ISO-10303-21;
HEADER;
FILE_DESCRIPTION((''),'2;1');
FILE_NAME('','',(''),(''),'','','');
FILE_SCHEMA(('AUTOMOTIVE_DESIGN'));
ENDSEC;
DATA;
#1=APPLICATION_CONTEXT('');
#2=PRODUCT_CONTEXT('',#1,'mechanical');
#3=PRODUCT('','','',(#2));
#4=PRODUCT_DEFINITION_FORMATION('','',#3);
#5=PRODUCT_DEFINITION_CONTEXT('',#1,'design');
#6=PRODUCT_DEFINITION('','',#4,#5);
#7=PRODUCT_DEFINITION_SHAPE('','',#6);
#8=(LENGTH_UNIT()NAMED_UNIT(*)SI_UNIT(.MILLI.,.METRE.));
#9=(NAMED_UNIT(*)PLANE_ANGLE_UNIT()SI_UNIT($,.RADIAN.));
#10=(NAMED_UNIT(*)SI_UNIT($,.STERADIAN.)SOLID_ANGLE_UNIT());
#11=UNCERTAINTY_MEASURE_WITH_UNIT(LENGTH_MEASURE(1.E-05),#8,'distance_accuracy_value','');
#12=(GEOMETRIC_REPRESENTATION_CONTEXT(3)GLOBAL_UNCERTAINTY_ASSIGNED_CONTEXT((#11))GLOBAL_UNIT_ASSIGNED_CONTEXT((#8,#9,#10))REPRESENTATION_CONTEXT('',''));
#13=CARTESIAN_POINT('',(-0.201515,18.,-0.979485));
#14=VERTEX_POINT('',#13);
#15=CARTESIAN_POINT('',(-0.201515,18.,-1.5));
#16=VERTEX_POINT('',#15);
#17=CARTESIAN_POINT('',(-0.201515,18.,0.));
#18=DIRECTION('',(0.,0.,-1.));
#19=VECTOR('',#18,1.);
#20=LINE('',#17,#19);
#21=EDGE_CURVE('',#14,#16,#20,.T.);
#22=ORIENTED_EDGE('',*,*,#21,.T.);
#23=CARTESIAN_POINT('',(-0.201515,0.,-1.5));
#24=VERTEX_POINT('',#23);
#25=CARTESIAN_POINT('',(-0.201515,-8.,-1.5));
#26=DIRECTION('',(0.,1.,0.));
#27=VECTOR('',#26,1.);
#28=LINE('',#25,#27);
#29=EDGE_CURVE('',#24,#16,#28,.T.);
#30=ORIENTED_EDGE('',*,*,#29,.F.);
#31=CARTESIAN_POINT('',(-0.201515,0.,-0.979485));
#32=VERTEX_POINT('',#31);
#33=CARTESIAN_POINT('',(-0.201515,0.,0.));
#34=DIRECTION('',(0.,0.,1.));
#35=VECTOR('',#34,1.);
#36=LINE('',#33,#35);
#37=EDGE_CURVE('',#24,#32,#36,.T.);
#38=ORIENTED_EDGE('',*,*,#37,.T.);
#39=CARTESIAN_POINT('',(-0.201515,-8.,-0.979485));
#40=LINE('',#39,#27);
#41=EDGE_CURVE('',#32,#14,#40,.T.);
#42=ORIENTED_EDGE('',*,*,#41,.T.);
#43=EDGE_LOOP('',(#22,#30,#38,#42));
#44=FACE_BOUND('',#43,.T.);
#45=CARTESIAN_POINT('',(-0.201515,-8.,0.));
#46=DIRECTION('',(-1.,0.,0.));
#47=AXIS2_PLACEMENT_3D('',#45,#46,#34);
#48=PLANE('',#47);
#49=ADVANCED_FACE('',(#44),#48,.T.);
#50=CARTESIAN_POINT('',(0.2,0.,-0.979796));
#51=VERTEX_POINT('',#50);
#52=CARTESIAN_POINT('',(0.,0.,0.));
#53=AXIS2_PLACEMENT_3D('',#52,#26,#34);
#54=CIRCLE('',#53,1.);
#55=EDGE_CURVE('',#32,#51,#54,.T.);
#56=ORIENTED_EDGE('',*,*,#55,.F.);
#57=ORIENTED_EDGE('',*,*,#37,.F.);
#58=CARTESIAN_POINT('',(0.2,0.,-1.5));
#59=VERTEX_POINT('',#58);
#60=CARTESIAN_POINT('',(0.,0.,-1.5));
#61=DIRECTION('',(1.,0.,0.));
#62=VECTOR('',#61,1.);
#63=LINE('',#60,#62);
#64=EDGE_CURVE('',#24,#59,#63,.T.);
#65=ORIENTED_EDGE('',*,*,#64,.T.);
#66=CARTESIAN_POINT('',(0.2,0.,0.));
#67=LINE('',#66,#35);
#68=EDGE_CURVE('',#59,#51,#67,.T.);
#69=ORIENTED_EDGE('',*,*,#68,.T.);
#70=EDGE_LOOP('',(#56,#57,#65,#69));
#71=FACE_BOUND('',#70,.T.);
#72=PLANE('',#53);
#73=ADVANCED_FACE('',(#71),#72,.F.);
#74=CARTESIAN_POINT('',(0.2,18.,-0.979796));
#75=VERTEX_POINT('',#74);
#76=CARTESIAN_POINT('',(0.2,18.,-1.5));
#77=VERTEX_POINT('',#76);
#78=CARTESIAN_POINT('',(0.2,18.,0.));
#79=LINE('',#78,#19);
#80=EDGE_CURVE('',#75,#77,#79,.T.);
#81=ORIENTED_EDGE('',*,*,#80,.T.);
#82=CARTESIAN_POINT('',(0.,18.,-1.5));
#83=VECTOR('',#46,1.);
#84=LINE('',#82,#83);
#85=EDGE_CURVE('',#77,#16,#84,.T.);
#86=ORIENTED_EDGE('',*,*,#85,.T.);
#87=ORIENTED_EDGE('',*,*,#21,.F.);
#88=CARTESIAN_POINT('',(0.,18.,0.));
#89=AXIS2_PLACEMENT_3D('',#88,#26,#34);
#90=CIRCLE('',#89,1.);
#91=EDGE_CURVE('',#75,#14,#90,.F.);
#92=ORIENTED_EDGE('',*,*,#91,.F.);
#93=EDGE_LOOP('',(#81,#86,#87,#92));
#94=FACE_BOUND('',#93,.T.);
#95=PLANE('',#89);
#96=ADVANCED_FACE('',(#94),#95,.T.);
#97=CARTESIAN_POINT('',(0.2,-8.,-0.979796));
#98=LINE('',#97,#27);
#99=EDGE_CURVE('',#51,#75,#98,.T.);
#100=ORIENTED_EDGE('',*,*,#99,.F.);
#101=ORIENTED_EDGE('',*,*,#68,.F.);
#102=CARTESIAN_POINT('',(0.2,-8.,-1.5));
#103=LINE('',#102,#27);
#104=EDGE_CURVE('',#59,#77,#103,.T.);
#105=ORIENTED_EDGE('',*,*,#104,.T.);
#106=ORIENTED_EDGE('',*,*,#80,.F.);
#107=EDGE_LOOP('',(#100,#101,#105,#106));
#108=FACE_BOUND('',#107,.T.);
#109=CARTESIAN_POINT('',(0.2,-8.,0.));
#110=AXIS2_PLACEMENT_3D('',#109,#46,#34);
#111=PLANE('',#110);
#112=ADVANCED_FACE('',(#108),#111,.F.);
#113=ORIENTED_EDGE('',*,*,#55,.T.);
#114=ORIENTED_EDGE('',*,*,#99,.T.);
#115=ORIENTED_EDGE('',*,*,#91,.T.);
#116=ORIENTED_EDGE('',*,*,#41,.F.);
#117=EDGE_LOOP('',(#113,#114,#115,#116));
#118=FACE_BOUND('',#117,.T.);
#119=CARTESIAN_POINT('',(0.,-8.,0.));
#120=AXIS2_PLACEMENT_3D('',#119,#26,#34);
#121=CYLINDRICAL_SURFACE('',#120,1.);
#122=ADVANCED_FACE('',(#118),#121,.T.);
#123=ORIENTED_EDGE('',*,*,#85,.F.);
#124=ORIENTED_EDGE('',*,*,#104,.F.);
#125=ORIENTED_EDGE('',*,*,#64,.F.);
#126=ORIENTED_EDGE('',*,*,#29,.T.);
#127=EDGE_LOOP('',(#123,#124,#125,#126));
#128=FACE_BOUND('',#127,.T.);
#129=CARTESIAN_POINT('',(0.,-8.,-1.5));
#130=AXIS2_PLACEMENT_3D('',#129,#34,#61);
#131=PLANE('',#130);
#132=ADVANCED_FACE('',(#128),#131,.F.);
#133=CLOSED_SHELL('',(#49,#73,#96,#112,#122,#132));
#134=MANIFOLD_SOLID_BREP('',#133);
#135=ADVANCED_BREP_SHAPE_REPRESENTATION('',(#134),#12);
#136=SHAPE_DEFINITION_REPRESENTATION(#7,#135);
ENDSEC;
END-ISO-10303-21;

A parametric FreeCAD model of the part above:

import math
import FreeCAD as App
import Part
import Sketcher

V = App.Vector

doc = App.newDocument("Part")
params = doc.addObject("Spreadsheet::Sheet", "Params")
for row, (alias, value) in enumerate([
    ("sketch1_radius", "2 mm"),
    ("sketch1_width", "1 mm"),
    ("pad1_length", "45 mm"),
    ("sketch2_radius", "1 mm"),
    ("pocket1_length", "53 mm"),
    ("pocket2_length", "27 mm"),
], start=1):
    params.set(f"A{row}", alias)
    params.set(f"B{row}", "=" + value)
    params.setAlias(f"B{row}", alias)

body = doc.addObject("PartDesign::Body", "Body")

sketch1 = body.newObject("Sketcher::SketchObject", "Sketch")
sketch1.AttachmentSupport = (doc.getObject("XZ_Plane"), [""])
sketch1.MapMode = "FlatFace"
sketch1.addGeometry(Part.LineSegment(V(0.5, -1.9, 0), V(0.5, -2.8, 0)), False)
sketch1.addGeometry(Part.LineSegment(V(0.5, -2.8, 0), V(-0.5, -2.8, 0)), False)
sketch1.addGeometry(Part.LineSegment(V(-0.5, -2.8, 0), V(-0.5, -1.9, 0)), False)
sketch1.addGeometry(Part.ArcOfCircle(Part.Circle(V(0, 0, 0), V(0, 0, 1), 2), math.radians(-76), math.radians(256)), False)
sketch1.addConstraint(Sketcher.Constraint("Coincident", 0, 2, 1, 1))
sketch1.addConstraint(Sketcher.Constraint("Coincident", 1, 2, 2, 1))
sketch1.addConstraint(Sketcher.Constraint("Coincident", 2, 2, 3, 2))
sketch1.addConstraint(Sketcher.Constraint("Coincident", 3, 1, 0, 1))
sketch1.addConstraint(Sketcher.Constraint("Vertical", 0))
sketch1.addConstraint(Sketcher.Constraint("Horizontal", 1))
sketch1.addConstraint(Sketcher.Constraint("Vertical", 2))
sketch1.addConstraint(Sketcher.Constraint("Coincident", 3, 3, -1, 1))
sketch1.addConstraint(Sketcher.Constraint("Horizontal", 2, 2, 3, 1))
sketch1.addConstraint(Sketcher.Constraint("Radius", 3, 2.0))
sketch1.addConstraint(Sketcher.Constraint("DistanceX", 1, 2, 1, 1, 1.0))
sketch1.addConstraint(Sketcher.Constraint("DistanceY", 0, 2, -1, 1, 2.8))
sketch1.setExpression("Constraints[9]", "Params.sketch1_radius")
sketch1.setExpression("Constraints[10]", "Params.sketch1_width")
pad1 = body.newObject("PartDesign::Pad", "Pad")
pad1.Profile = sketch1
pad1.setExpression("Length", "Params.pad1_length")
pad1.Reversed = True

sketch2 = body.newObject("Sketcher::SketchObject", "Sketch001")
sketch2.AttachmentSupport = (doc.getObject("XZ_Plane"), [""])
sketch2.MapMode = "FlatFace"
sketch2.AttachmentOffset = App.Placement(V(0, 0, 8), App.Rotation())
sketch2.addGeometry(Part.Circle(V(0, 0, 0), V(0, 0, 1), 4.18), False)
sketch2.addGeometry(Part.ArcOfCircle(Part.Circle(V(0, 0, 0), V(0, 0, 1), 1), math.radians(0), math.radians(258)), False)
sketch2.addGeometry(Part.LineSegment(V(-0.2, -0.98, 0), V(-0.2, -1.5, 0)), False)
sketch2.addGeometry(Part.LineSegment(V(-0.2, -1.5, 0), V(0.2, -1.5, 0)), False)
sketch2.addGeometry(Part.LineSegment(V(0.2, -1.5, 0), V(0.2, -0.98, 0)), False)
sketch2.addGeometry(Part.ArcOfCircle(Part.Circle(V(0, 0, 0), V(0, 0, 1), 1), math.radians(-78), math.radians(0)), False)
sketch2.addConstraint(Sketcher.Constraint("Coincident", 1, 2, 2, 1))
sketch2.addConstraint(Sketcher.Constraint("Coincident", 2, 2, 3, 1))
sketch2.addConstraint(Sketcher.Constraint("Coincident", 3, 2, 4, 1))
sketch2.addConstraint(Sketcher.Constraint("Coincident", 4, 2, 5, 1))
sketch2.addConstraint(Sketcher.Constraint("Tangent", 5, 2, 1, 1))
sketch2.addConstraint(Sketcher.Constraint("Vertical", 2))
sketch2.addConstraint(Sketcher.Constraint("Horizontal", 3))
sketch2.addConstraint(Sketcher.Constraint("Vertical", 4))
sketch2.addConstraint(Sketcher.Constraint("Coincident", 0, 3, -1, 1))
sketch2.addConstraint(Sketcher.Constraint("Coincident", 1, 3, -1, 1))
sketch2.addConstraint(Sketcher.Constraint("Equal", 1, 5))
sketch2.addConstraint(Sketcher.Constraint("PointOnObject", 5, 2, -1))
sketch2.addConstraint(Sketcher.Constraint("Radius", 1, 1.0))
sketch2.addConstraint(Sketcher.Constraint("DistanceY", 2, 2, -1, 1, 1.5))
sketch2.addConstraint(Sketcher.Constraint("DistanceX", -1, 1, 3, 2, 0.2))
sketch2.addConstraint(Sketcher.Constraint("Diameter", 0, 8.363546))
sketch2.addConstraint(Sketcher.Constraint("DistanceX", 3, 1, 3, 2, 0.401515))
sketch2.setExpression("Constraints[12]", "Params.sketch2_radius")
pocket1 = body.newObject("PartDesign::Pocket", "Pocket")
pocket1.Profile = sketch2
pocket1.setExpression("Length", "Params.pocket1_length")

sketch3 = body.newObject("Sketcher::SketchObject", "Sketch002")
sketch3.AttachmentSupport = (doc.getObject("XZ_Plane"), [""])
sketch3.MapMode = "FlatFace"
sketch3.AttachmentOffset = App.Placement(V(0, 0, -45), App.Rotation())
sketch3.addGeometry(Part.Circle(V(0, 0, 0), V(0, 0, 1), 2.3), False)
sketch3.addConstraint(Sketcher.Constraint("Coincident", 0, 3, -1, 1))
sketch3.addConstraint(Sketcher.Constraint("Diameter", 0, 4.65654))
pocket2 = body.newObject("PartDesign::Pocket", "Pocket001")
pocket2.Profile = sketch3
pocket2.setExpression("Length", "Params.pocket2_length")
pocket2.Reversed = True

doc.recompute()
